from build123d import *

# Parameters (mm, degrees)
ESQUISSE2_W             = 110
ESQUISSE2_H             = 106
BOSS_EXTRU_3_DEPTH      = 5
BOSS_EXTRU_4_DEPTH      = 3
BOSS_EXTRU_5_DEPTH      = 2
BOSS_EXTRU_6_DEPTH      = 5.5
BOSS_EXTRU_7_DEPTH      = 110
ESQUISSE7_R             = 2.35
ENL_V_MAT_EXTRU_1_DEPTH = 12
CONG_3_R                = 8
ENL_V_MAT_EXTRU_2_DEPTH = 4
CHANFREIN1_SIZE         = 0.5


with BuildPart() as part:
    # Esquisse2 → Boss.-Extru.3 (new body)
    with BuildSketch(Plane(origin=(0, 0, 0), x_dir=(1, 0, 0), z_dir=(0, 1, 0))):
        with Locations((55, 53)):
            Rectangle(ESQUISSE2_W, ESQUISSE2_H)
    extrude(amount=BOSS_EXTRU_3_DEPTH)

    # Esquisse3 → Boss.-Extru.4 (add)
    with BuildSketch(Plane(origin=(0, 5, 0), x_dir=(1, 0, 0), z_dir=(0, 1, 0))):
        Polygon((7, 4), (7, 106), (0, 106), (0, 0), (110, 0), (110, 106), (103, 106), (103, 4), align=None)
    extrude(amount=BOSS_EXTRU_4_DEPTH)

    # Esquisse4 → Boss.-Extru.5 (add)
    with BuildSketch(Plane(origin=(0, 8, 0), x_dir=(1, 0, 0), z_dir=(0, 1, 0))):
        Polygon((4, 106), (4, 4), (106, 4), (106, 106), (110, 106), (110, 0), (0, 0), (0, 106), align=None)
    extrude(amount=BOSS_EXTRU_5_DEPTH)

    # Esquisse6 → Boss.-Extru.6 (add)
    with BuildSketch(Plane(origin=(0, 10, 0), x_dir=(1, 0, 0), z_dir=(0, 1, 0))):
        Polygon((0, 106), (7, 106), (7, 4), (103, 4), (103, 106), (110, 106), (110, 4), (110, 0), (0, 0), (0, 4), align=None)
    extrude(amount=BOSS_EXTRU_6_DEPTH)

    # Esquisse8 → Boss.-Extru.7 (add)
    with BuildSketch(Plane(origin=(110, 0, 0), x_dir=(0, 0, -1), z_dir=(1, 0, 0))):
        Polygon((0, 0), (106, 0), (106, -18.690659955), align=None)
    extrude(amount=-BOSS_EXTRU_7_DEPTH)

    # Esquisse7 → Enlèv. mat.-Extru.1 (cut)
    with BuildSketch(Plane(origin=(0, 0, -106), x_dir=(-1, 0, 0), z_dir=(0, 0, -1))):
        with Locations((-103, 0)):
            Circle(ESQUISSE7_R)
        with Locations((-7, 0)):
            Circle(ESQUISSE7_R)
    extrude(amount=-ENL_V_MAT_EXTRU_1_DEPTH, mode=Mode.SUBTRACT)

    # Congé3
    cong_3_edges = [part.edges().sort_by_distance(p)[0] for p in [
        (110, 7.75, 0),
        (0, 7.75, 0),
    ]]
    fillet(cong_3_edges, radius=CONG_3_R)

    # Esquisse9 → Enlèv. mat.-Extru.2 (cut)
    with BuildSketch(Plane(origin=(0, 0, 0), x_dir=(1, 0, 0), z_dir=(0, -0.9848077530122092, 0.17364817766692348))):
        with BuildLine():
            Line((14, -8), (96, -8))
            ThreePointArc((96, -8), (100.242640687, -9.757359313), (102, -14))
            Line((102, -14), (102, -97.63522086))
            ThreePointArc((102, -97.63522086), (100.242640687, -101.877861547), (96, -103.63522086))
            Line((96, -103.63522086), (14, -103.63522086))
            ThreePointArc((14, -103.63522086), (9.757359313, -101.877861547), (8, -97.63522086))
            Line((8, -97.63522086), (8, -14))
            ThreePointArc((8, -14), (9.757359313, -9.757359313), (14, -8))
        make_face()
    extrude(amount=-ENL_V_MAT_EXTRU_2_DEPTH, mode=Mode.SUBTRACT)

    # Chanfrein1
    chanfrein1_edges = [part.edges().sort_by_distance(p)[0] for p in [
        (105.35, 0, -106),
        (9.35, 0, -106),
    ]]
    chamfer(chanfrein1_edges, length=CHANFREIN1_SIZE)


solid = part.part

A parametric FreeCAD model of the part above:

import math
import FreeCAD as App
import Part
import Sketcher

V = App.Vector
Q = App.Units.Quantity


def edges_at(feature, points):
    """Names of the edges that pass closest to the given points."""
    edges = feature.Shape.Edges
    near = lambda p: min(range(len(edges)), key=lambda i: edges[i].distToShape(Part.Vertex(*p))[0])
    return sorted({f"Edge{near(p) + 1}" for p in points})

doc = App.newDocument("Part")
body = doc.addObject("PartDesign::Body", "Body")

# Sketch on XZ plane
sketch1 = body.newObject("Sketcher::SketchObject", "Sketch")
sketch1.AttachmentSupport = (doc.getObject("XZ_Plane"), [""])
sketch1.MapMode = "FlatFace"
sketch1.addGeometry([
    Part.LineSegment(V(0, -106, 0), V(0, 0, 0)),
    Part.LineSegment(V(0, 0, 0), V(110, 0, 0)),
    Part.LineSegment(V(110, 0, 0), V(110, -106, 0)),
    Part.LineSegment(V(110, -106, 0), V(0, -106, 0)),
], False)
sketch1.addConstraint([
    Sketcher.Constraint("Coincident", 0, 2, 1, 1),
    Sketcher.Constraint("Coincident", 1, 2, 2, 1),
    Sketcher.Constraint("Coincident", 2, 2, 3, 1),
    Sketcher.Constraint("Coincident", 3, 2, 0, 1),
    Sketcher.Constraint("Vertical", 0),
    Sketcher.Constraint("Horizontal", 1),
    Sketcher.Constraint("Vertical", 2),
    Sketcher.Constraint("Horizontal", 3),
    Sketcher.Constraint("Coincident", 0, 2, -1, 1),
    Sketcher.Constraint("DistanceX", 1, 1, 1, 2, Q("110 mm")),
    Sketcher.Constraint("DistanceY", 0, 1, 0, 2, Q("106 mm")),
])
pad1 = body.newObject("PartDesign::Pad", "Pad")
pad1.Profile = sketch1
pad1.Length = 5
pad1.Reversed = True

# Sketch on XZ plane
sketch2 = body.newObject("Sketcher::SketchObject", "Sketch001")
sketch2.AttachmentSupport = (doc.getObject("XZ_Plane"), [""])
sketch2.MapMode = "FlatFace"
sketch2.AttachmentOffset = App.Placement(V(0, 0, -5), App.Rotation())
sketch2.addGeometry([
    Part.LineSegment(V(7, -4, 0), V(7, -106, 0)),  # 0
    Part.LineSegment(V(7, -106, 0), V(0, -106, 0)),  # 1
    Part.LineSegment(V(0, -106, 0), V(0, 0, 0)),  # 2
    Part.LineSegment(V(0, 0, 0), V(110, 0, 0)),  # 3
    Part.LineSegment(V(110, 0, 0), V(110, -106, 0)),  # 4
    Part.LineSegment(V(110, -106, 0), V(103, -106, 0)),  # 5
    Part.LineSegment(V(103, -106, 0), V(103, -4, 0)),  # 6
    Part.LineSegment(V(103, -4, 0), V(7, -4, 0)),  # 7
], False)
sketch2.addConstraint([
    Sketcher.Constraint("Coincident", 0, 2, 1, 1),
    Sketcher.Constraint("Coincident", 1, 2, 2, 1),
    Sketcher.Constraint("Coincident", 2, 2, 3, 1),
    Sketcher.Constraint("Coincident", 3, 2, 4, 1),
    Sketcher.Constraint("Coincident", 4, 2, 5, 1),
    Sketcher.Constraint("Coincident", 5, 2, 6, 1),
    Sketcher.Constraint("Coincident", 6, 2, 7, 1),
    Sketcher.Constraint("Coincident", 7, 2, 0, 1),
    Sketcher.Constraint("Vertical", 0),
    Sketcher.Constraint("Horizontal", 1),
    Sketcher.Constraint("Vertical", 2),
    Sketcher.Constraint("Horizontal", 3),
    Sketcher.Constraint("Vertical", 4),
    Sketcher.Constraint("Horizontal", 5),
    Sketcher.Constraint("Vertical", 6),
    Sketcher.Constraint("Horizontal", 7),
    Sketcher.Constraint("Coincident", 2, 2, -1, 1),
    Sketcher.Constraint("Horizontal", 1, 2, 4, 2),
    Sketcher.Constraint("Equal", 1, 5),
    Sketcher.Constraint("DistanceX", 1, 2, 1, 1, Q("7 mm")),
    Sketcher.Constraint("DistanceX", 3, 1, 3, 2, Q("110 mm")),
    Sketcher.Constraint("DistanceY", 0, 2, 0, 1, Q("102 mm")),
    Sketcher.Constraint("DistanceY", 2, 1, 2, 2, Q("106 mm")),
])
pad2 = body.newObject("PartDesign::Pad", "Pad001")
pad2.Profile = sketch2
pad2.Length = 3
pad2.Reversed = True

# Sketch on XZ plane
sketch3 = body.newObject("Sketcher::SketchObject", "Sketch002")
sketch3.AttachmentSupport = (doc.getObject("XZ_Plane"), [""])
sketch3.MapMode = "FlatFace"
sketch3.AttachmentOffset = App.Placement(V(0, 0, -8), App.Rotation())
sketch3.addGeometry([
    Part.LineSegment(V(4, -4, 0), V(4, -106, 0)),  # 0
    Part.LineSegment(V(4, -106, 0), V(0, -106, 0)),  # 1
    Part.LineSegment(V(0, -106, 0), V(0, 0, 0)),  # 2
    Part.LineSegment(V(0, 0, 0), V(110, 0, 0)),  # 3
    Part.LineSegment(V(110, 0, 0), V(110, -106, 0)),  # 4
    Part.LineSegment(V(110, -106, 0), V(106, -106, 0)),  # 5
    Part.LineSegment(V(106, -106, 0), V(106, -4, 0)),  # 6
    Part.LineSegment(V(106, -4, 0), V(4, -4, 0)),  # 7
], False)
sketch3.addConstraint([
    Sketcher.Constraint("Coincident", 0, 2, 1, 1),
    Sketcher.Constraint("Coincident", 1, 2, 2, 1),
    Sketcher.Constraint("Coincident", 2, 2, 3, 1),
    Sketcher.Constraint("Coincident", 3, 2, 4, 1),
    Sketcher.Constraint("Coincident", 4, 2, 5, 1),
    Sketcher.Constraint("Coincident", 5, 2, 6, 1),
    Sketcher.Constraint("Coincident", 6, 2, 7, 1),
    Sketcher.Constraint("Coincident", 7, 2, 0, 1),
    Sketcher.Constraint("Vertical", 0),
    Sketcher.Constraint("Horizontal", 1),
    Sketcher.Constraint("Vertical", 2),
    Sketcher.Constraint("Horizontal", 3),
    Sketcher.Constraint("Vertical", 4),
    Sketcher.Constraint("Horizontal", 5),
    Sketcher.Constraint("Vertical", 6),
    Sketcher.Constraint("Horizontal", 7),
    Sketcher.Constraint("Coincident", 2, 2, -1, 1),
    Sketcher.Constraint("Horizontal", 1, 2, 4, 2),
    Sketcher.Constraint("Equal", 1, 5),
    Sketcher.Constraint("Equal", 7, 0),
    Sketcher.Constraint("DistanceX", 1, 2, 1, 1, Q("4 mm")),
    Sketcher.Constraint("DistanceX", 3, 1, 3, 2, Q("110 mm")),
    Sketcher.Constraint("DistanceY", 2, 1, 2, 2, Q("106 mm")),
])
pad3 = body.newObject("PartDesign::Pad", "Pad002")
pad3.Profile = sketch3
pad3.Length = 2
pad3.Reversed = True

# Sketch on XZ plane
sketch4 = body.newObject("Sketcher::SketchObject", "Sketch003")
sketch4.AttachmentSupport = (doc.getObject("XZ_Plane"), [""])
sketch4.MapMode = "FlatFace"
sketch4.AttachmentOffset = App.Placement(V(0, 0, -10), App.Rotation())
sketch4.addGeometry([
    Part.LineSegment(V(7, -106, 0), V(0, -106, 0)),  # 0
    Part.LineSegment(V(0, -106, 0), V(0, 0, 0)),  # 1
    Part.LineSegment(V(0, 0, 0), V(110, 0, 0)),  # 2
    Part.LineSegment(V(110, 0, 0), V(110, -106, 0)),  # 3
    Part.LineSegment(V(110, -106, 0), V(103, -106, 0)),  # 4
    Part.LineSegment(V(103, -106, 0), V(103, -4, 0)),  # 5
    Part.LineSegment(V(103, -4, 0), V(7, -4, 0)),  # 6
    Part.LineSegment(V(7, -4, 0), V(7, -106, 0)),  # 7
], False)
sketch4.addConstraint([
    Sketcher.Constraint("Coincident", 0, 2, 1, 1),
    Sketcher.Constraint("Coincident", 1, 2, 2, 1),
    Sketcher.Constraint("Coincident", 2, 2, 3, 1),
    Sketcher.Constraint("Coincident", 3, 2, 4, 1),
    Sketcher.Constraint("Coincident", 4, 2, 5, 1),
    Sketcher.Constraint("Coincident", 5, 2, 6, 1),
    Sketcher.Constraint("Coincident", 6, 2, 7, 1),
    Sketcher.Constraint("Coincident", 7, 2, 0, 1),
    Sketcher.Constraint("Horizontal", 0),
    Sketcher.Constraint("Vertical", 1),
    Sketcher.Constraint("Horizontal", 2),
    Sketcher.Constraint("Vertical", 3),
    Sketcher.Constraint("Horizontal", 4),
    Sketcher.Constraint("Vertical", 5),
    Sketcher.Constraint("Horizontal", 6),
    Sketcher.Constraint("Vertical", 7),
    Sketcher.Constraint("Coincident", 1, 2, -1, 1),
    Sketcher.Constraint("Horizontal", 0, 2, 3, 2),
    Sketcher.Constraint("Equal", 0, 4),
    Sketcher.Constraint("DistanceX", 0, 2, 0, 1, Q("7 mm")),
    Sketcher.Constraint("DistanceX", 2, 1, 2, 2, Q("110 mm")),
    Sketcher.Constraint("DistanceY", 1, 1, 1, 2, Q("106 mm")),
    Sketcher.Constraint("DistanceY", 5, 1, 5, 2, Q("102 mm")),
])
pad4 = body.newObject("PartDesign::Pad", "Pad003")
pad4.Profile = sketch4
pad4.Length = 5.5
pad4.Reversed = True

# Sketch on YZ plane
sketch5 = body.newObject("Sketcher::SketchObject", "Sketch004")
sketch5.AttachmentSupport = (doc.getObject("YZ_Plane"), [""])
sketch5.MapMode = "FlatFace"
sketch5.AttachmentOffset = App.Placement(V(0, 0, 110), App.Rotation())
sketch5.addGeometry([
    Part.LineSegment(V(0, -106, 0), V(0, 0, 0)),
    Part.LineSegment(V(0, 0, 0), V(-19, -106, 0)),
    Part.LineSegment(V(-19, -106, 0), V(0, -106, 0)),
], False)
sketch5.addConstraint([
    Sketcher.Constraint("Coincident", 0, 2, 1, 1),
    Sketcher.Constraint("Coincident", 1, 2, 2, 1),
    Sketcher.Constraint("Coincident", 2, 2, 0, 1),
    Sketcher.Constraint("Vertical", 0),
    Sketcher.Constraint("Horizontal", 2),
    Sketcher.Constraint("Coincident", 0, 2, -1, 1),
    Sketcher.Constraint("DistanceY", 0, 1, 0, 2, Q("106 mm")),
    Sketcher.Constraint("Angle", 1, Q("-100 deg")),
])
pad5 = body.newObject("PartDesign::Pad", "Pad004")
pad5.Profile = sketch5
pad5.Length = 110
pad5.Reversed = True

# Sketch on XY plane
sketch6 = body.newObject("Sketcher::SketchObject", "Sketch005")
sketch6.AttachmentSupport = (doc.getObject("XY_Plane"), [""])
sketch6.MapMode = "FlatFace"
sketch6.AttachmentOffset = App.Placement(V(0, 0, -106), App.Rotation())
sketch6.addGeometry([
    Part.Circle(V(103, 0, 0), V(0, 0, 1), 2.4),
    Part.Circle(V(7, 0, 0), V(0, 0, 1), 2.4),
], False)
sketch6.addConstraint([
    Sketcher.Constraint("Equal", 0, 1),
    Sketcher.Constraint("PointOnObject", 0, 3, -1),
    Sketcher.Constraint("PointOnObject", 1, 3, -1),
    Sketcher.Constraint("Diameter", 0, Q("4.7 mm")),
    Sketcher.Constraint("DistanceX", -1, 1, 0, 3, Q("103 mm")),
    Sketcher.Constraint("DistanceX", -1, 1, 1, 3, Q("7 mm")),
])
pocket1 = body.newObject("PartDesign::Pocket", "Pocket")
pocket1.Profile = sketch6
pocket1.Length = 12
pocket1.Reversed = True
doc.recompute()

fillet = body.newObject("PartDesign::Fillet", "Fillet")
fillet.Base = (pocket1, edges_at(pocket1, [(110, 7.75, 0), (0, 7.75, 0)]))
fillet.Radius = 8

# Sketch on an angled plane
sketch7 = body.newObject("Sketcher::SketchObject", "Sketch006")
sketch7.Placement = App.Placement(V(0, 0, 0), App.Rotation(V(1, 0, 0), V(0, 0.173648178, 0.984807753), V(0, -0.984807753, 0.173648178), "ZXY"))
sketch7.addGeometry([
    Part.LineSegment(V(96, -8, 0), V(14, -8, 0)),  # 0
    Part.ArcOfCircle(Part.Circle(V(14, -14, 0), V(0, 0, 1), 6), math.radians(90), math.radians(180)),  # 1
    Part.LineSegment(V(8, -14, 0), V(8, -98, 0)),  # 2
    Part.ArcOfCircle(Part.Circle(V(14, -98, 0), V(0, 0, 1), 6), math.radians(180), math.radians(270)),  # 3
    Part.LineSegment(V(14, -104, 0), V(96, -104, 0)),  # 4
    Part.ArcOfCircle(Part.Circle(V(96, -98, 0), V(0, 0, 1), 6), math.radians(-90), math.radians(0)),  # 5
    Part.LineSegment(V(102, -98, 0), V(102, -14, 0)),  # 6
    Part.ArcOfCircle(Part.Circle(V(96, -14, 0), V(0, 0, 1), 6), math.radians(0), math.radians(90)),  # 7
], False)
sketch7.addConstraint([
    Sketcher.Constraint("Tangent", 0, 2, 1, 1),
    Sketcher.Constraint("Tangent", 1, 2, 2, 1),
    Sketcher.Constraint("Tangent", 2, 2, 3, 1),
    Sketcher.Constraint("Tangent", 3, 2, 4, 1),
    Sketcher.Constraint("Tangent", 4, 2, 5, 1),
    Sketcher.Constraint("Tangent", 5, 2, 6, 1),
    Sketcher.Constraint("Tangent", 6, 2, 7, 1),
    Sketcher.Constraint("Tangent", 7, 2, 0, 1),
    Sketcher.Constraint("Horizontal", 0),
    Sketcher.Constraint("Vertical", 2),
    Sketcher.Constraint("Horizontal", 4),
    Sketcher.Constraint("Vertical", 6),
    Sketcher.Constraint("Equal", 1, 3),
    Sketcher.Constraint("Equal", 3, 5),
    Sketcher.Constraint("Equal", 5, 7),
    Sketcher.Constraint("Radius", 1, Q("6 mm")),
    Sketcher.Constraint("DistanceX", 0, 2, 0, 1, Q("82 mm")),
    Sketcher.Constraint("DistanceX", -1, 1, 1, 3, Q("14 mm")),
    Sketcher.Constraint("DistanceY", 1, 3, -1, 1, Q("14 mm")),
    Sketcher.Constraint("DistanceY", 2, 2, 2, 1, Q("83.635221 mm")),
])
pocket2 = body.newObject("PartDesign::Pocket", "Pocket001")
pocket2.Profile = sketch7
pocket2.Length = 4
doc.recompute()

chamfer = body.newObject("PartDesign::Chamfer", "Chamfer")
chamfer.Base = (pocket2, edges_at(pocket2, [(105.35, 0, -106), (9.35, 0, -106)]))
chamfer.Size = 0.5

doc.recompute()
